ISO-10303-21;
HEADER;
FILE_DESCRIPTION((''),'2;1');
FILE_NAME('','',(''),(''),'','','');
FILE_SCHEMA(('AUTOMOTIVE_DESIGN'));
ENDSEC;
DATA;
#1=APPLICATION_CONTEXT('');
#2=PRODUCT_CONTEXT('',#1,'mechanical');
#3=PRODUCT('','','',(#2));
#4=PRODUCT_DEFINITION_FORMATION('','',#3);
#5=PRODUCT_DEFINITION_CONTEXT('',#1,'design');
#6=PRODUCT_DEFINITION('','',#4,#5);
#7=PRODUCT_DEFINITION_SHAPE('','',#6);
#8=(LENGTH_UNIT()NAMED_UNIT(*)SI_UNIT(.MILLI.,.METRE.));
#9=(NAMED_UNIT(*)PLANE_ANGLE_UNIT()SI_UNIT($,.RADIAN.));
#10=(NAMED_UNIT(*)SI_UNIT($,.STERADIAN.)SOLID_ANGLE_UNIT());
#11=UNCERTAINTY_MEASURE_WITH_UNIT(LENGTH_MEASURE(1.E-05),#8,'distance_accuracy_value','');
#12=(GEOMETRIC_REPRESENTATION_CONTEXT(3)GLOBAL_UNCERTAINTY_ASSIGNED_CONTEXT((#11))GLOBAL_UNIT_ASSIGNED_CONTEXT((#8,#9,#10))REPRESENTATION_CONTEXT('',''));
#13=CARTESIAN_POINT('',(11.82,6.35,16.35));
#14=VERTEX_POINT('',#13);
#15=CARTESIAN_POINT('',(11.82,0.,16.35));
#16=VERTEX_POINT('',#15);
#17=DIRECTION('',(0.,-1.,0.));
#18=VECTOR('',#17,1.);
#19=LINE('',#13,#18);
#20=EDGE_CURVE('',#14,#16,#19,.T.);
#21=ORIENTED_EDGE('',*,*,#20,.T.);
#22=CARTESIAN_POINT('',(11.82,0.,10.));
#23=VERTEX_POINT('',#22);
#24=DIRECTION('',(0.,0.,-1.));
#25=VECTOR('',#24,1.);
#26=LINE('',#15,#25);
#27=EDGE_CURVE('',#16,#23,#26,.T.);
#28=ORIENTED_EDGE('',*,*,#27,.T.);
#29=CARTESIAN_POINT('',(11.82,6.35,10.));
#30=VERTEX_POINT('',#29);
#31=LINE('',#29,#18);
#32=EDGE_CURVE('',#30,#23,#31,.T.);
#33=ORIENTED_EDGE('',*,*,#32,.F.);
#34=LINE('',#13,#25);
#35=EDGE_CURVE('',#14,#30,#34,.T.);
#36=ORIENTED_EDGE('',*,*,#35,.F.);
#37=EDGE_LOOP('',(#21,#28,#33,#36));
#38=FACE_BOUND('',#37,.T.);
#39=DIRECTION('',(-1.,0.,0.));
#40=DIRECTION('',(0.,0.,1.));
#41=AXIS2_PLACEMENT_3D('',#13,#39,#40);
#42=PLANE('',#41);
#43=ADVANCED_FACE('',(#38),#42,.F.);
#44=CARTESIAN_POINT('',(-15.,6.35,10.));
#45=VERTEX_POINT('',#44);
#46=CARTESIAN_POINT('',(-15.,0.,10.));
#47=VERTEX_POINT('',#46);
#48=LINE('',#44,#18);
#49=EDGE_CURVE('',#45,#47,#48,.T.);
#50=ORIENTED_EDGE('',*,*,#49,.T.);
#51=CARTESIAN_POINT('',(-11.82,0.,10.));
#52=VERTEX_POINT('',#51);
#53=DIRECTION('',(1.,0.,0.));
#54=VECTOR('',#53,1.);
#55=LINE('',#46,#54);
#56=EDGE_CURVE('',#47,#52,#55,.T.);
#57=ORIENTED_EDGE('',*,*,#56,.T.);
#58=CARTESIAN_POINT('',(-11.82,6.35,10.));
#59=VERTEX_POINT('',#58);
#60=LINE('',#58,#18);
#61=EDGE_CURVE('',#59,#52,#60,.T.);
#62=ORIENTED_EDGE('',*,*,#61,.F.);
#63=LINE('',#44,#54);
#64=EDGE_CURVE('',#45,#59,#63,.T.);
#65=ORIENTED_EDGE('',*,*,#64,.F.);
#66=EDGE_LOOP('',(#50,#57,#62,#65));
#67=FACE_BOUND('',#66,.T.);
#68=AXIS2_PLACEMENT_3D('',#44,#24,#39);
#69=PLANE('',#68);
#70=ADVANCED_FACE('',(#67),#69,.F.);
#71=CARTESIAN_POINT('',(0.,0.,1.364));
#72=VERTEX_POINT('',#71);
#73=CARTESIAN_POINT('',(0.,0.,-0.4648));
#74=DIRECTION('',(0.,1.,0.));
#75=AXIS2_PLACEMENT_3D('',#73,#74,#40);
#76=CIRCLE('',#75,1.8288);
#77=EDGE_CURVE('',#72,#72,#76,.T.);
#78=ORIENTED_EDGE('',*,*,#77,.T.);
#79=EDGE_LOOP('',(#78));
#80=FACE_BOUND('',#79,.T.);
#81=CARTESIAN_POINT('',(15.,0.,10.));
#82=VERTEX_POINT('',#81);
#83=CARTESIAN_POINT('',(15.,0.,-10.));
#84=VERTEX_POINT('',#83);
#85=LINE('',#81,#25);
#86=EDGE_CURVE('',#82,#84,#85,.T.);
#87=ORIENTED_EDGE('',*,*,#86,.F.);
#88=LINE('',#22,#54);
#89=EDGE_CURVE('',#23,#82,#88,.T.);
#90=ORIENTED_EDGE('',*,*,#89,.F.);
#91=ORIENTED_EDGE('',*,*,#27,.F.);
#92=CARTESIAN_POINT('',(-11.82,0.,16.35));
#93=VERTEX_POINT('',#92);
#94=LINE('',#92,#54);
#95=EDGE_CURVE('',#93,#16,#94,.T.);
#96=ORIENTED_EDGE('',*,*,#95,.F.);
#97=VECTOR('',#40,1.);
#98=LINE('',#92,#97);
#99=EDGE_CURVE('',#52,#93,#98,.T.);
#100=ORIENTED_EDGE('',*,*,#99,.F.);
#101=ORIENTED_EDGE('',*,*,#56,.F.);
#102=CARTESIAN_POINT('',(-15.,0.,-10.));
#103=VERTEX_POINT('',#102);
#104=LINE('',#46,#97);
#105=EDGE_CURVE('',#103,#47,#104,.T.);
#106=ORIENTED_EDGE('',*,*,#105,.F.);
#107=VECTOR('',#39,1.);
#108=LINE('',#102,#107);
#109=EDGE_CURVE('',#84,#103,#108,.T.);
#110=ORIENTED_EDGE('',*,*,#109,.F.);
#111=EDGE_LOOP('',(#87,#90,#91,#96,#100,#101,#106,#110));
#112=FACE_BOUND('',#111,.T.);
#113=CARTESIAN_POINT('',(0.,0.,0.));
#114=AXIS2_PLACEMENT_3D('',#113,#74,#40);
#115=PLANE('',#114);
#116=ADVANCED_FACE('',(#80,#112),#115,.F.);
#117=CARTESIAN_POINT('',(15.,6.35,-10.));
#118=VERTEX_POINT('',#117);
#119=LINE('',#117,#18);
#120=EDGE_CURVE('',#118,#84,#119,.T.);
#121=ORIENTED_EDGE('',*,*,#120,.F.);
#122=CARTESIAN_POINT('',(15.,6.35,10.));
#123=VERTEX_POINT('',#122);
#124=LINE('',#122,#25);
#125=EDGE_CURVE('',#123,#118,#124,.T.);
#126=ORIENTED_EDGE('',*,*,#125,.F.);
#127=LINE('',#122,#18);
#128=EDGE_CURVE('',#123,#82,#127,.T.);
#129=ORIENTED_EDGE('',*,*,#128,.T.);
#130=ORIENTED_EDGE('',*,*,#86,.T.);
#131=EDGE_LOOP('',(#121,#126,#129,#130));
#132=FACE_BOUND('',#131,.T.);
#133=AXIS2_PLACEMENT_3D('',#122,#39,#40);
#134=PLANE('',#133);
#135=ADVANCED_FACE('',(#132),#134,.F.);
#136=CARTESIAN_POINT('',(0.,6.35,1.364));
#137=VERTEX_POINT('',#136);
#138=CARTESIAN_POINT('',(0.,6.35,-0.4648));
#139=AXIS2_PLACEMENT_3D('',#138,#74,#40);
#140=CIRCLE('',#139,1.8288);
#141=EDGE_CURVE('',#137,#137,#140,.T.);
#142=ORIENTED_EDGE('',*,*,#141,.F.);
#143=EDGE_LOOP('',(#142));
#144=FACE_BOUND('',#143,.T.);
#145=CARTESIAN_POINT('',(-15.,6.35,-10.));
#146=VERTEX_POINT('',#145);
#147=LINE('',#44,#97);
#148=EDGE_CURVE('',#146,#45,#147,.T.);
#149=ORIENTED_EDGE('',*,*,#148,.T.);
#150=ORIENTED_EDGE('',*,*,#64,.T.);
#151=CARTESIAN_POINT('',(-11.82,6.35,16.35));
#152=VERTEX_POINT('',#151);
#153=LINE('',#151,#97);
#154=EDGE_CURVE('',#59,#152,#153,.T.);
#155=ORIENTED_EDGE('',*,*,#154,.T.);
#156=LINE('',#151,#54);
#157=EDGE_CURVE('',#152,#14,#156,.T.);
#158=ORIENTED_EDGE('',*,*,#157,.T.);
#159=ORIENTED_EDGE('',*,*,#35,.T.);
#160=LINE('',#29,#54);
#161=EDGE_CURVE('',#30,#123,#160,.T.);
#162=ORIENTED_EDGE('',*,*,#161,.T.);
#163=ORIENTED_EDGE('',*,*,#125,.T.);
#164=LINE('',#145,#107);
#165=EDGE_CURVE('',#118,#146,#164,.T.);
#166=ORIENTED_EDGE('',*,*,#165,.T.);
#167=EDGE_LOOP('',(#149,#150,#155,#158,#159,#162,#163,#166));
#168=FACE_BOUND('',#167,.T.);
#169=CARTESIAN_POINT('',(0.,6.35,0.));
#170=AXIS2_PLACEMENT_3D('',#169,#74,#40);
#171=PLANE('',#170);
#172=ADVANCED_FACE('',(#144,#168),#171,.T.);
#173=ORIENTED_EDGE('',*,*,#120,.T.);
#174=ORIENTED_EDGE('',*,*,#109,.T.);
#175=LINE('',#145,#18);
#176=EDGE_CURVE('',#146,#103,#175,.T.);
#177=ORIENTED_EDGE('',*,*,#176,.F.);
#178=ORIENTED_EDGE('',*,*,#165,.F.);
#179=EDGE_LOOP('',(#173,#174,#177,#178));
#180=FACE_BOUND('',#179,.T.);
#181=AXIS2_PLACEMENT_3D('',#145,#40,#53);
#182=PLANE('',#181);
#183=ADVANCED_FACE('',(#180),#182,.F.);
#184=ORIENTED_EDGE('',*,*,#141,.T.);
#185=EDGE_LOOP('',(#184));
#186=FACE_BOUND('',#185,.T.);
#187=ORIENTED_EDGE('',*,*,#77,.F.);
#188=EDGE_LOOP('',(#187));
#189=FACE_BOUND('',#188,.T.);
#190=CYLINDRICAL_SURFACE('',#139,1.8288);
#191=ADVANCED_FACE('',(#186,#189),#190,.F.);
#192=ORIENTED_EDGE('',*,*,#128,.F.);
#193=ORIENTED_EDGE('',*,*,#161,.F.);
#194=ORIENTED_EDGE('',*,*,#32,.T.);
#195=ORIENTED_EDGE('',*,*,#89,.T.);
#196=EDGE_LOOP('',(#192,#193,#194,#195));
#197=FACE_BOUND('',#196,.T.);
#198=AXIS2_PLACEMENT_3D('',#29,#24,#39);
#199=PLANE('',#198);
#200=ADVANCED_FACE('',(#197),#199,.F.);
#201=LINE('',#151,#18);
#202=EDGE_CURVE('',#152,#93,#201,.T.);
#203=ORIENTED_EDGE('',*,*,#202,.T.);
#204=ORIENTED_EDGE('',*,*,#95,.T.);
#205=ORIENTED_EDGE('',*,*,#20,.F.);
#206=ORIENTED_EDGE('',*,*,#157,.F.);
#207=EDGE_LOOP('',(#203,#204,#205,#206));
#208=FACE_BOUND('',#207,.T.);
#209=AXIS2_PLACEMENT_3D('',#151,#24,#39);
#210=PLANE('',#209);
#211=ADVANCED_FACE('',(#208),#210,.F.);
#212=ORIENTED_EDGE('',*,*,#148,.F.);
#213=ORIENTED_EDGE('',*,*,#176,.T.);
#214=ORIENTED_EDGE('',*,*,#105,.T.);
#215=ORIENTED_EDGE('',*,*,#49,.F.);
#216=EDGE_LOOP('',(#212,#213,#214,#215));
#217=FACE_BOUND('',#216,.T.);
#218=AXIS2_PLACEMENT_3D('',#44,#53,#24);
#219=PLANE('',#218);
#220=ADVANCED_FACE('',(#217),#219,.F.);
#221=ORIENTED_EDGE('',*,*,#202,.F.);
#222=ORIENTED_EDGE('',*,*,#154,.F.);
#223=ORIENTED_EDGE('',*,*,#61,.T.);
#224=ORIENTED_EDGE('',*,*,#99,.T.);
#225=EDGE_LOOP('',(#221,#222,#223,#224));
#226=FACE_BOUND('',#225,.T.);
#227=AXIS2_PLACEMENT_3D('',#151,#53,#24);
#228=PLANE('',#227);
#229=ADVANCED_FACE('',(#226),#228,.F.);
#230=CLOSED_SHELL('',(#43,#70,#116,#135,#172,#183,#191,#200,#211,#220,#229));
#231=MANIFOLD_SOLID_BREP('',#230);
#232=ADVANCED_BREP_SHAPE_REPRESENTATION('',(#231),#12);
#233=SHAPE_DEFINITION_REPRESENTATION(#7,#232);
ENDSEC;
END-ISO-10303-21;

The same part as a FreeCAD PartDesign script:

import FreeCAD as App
import Part
import Sketcher
Q = App.Units.Quantity

doc = App.newDocument("Part")
params = doc.addObject("Spreadsheet::Sheet", "Params")
for row, (alias, value) in enumerate([
    ("sketch1_width", "30 mm"),
    ("sketch1_height", "20 mm"),
    ("sketch1_width2", "3.18 mm"),
    ("sketch1_height2", "6.35 mm"),
    ("pad1_length", "6.35 mm"),
    ("hole_diameter", "3.6576 mm"),
], start=1):
    params.set(f"A{row}", alias)
    params.set(f"B{row}", "=" + value)
    params.setAlias(f"B{row}", alias)

body = doc.addObject("PartDesign::Body", "Body")

# Sketch on XZ plane
sketch1 = doc.addObject("Sketcher::SketchObject", "Sketch")
body.addObject(sketch1)
sketch1.AttachmentSupport = (doc.XZ_Plane, [""])
sketch1.MapMode = "FlatFace"
sketch1.addGeometry(Part.LineSegment(App.Vector(-15, -10, 0), App.Vector(-15, 10, 0)), False)
sketch1.addGeometry(Part.LineSegment(App.Vector(-15, 10, 0), App.Vector(-11.8, 10, 0)), False)
sketch1.addGeometry(Part.LineSegment(App.Vector(-11.8, 10, 0), App.Vector(-11.8, 16.4, 0)), False)
sketch1.addGeometry(Part.LineSegment(App.Vector(-11.8, 16.4, 0), App.Vector(11.8, 16.4, 0)), False)
sketch1.addGeometry(Part.LineSegment(App.Vector(11.8, 16.4, 0), App.Vector(11.8, 10, 0)), False)
sketch1.addGeometry(Part.LineSegment(App.Vector(11.8, 10, 0), App.Vector(15, 10, 0)), False)
sketch1.addGeometry(Part.LineSegment(App.Vector(15, 10, 0), App.Vector(15, -10, 0)), False)
sketch1.addGeometry(Part.LineSegment(App.Vector(15, -10, 0), App.Vector(-15, -10, 0)), False)
sketch1.addConstraint(Sketcher.Constraint("Coincident", 0, 2, 1, 1))
sketch1.addConstraint(Sketcher.Constraint("Coincident", 1, 2, 2, 1))
sketch1.addConstraint(Sketcher.Constraint("Coincident", 2, 2, 3, 1))
sketch1.addConstraint(Sketcher.Constraint("Coincident", 3, 2, 4, 1))
sketch1.addConstraint(Sketcher.Constraint("Coincident", 4, 2, 5, 1))
sketch1.addConstraint(Sketcher.Constraint("Coincident", 5, 2, 6, 1))
sketch1.addConstraint(Sketcher.Constraint("Coincident", 6, 2, 7, 1))
sketch1.addConstraint(Sketcher.Constraint("Coincident", 7, 2, 0, 1))
sketch1.addConstraint(Sketcher.Constraint("Vertical", 0))
sketch1.addConstraint(Sketcher.Constraint("Horizontal", 1))
sketch1.addConstraint(Sketcher.Constraint("Vertical", 2))
sketch1.addConstraint(Sketcher.Constraint("Horizontal", 3))
sketch1.addConstraint(Sketcher.Constraint("Vertical", 4))
sketch1.addConstraint(Sketcher.Constraint("Horizontal", 5))
sketch1.addConstraint(Sketcher.Constraint("Vertical", 6))
sketch1.addConstraint(Sketcher.Constraint("Horizontal", 7))
sketch1.addConstraint(Sketcher.Constraint("Symmetric", 0, 2, 6, 2, -1, 1))
sketch1.addConstraint(Sketcher.Constraint("Symmetric", 1, 2, 4, 2, -2))
sketch1.addConstraint(Sketcher.Constraint("DistanceX", 7, 2, 7, 1, Q("30 mm")))
sketch1.addConstraint(Sketcher.Constraint("DistanceY", 0, 1, 0, 2, Q("20 mm")))
sketch1.addConstraint(Sketcher.Constraint("DistanceX", 1, 1, 1, 2, Q("3.18 mm")))
sketch1.addConstraint(Sketcher.Constraint("DistanceY", 2, 1, 2, 2, Q("6.35 mm")))
sketch1.setExpression("Constraints[18]", "Params.sketch1_width")
sketch1.setExpression("Constraints[19]", "Params.sketch1_height")
sketch1.setExpression("Constraints[20]", "Params.sketch1_width2")
sketch1.setExpression("Constraints[21]", "Params.sketch1_height2")
pad1 = doc.addObject("PartDesign::Pad", "Pad")
body.addObject(pad1)
pad1.Profile = sketch1
pad1.setExpression("Length", "Params.pad1_length")
pad1.Reversed = True

# Sketch on XZ plane
sketch2 = doc.addObject("Sketcher::SketchObject", "Sketch001")
body.addObject(sketch2)
sketch2.AttachmentSupport = (doc.XZ_Plane, [""])
sketch2.MapMode = "FlatFace"
sketch2.AttachmentOffset = App.Placement(App.Vector(0, 0, -6.35), App.Rotation())
sketch2.addGeometry(Part.Circle(App.Vector(0, -0.5, 0), App.Vector(0, 0, 1), 1.8), False)
sketch2.addConstraint(Sketcher.Constraint("PointOnObject", 0, 3, -2))
sketch2.addConstraint(Sketcher.Constraint("Diameter", 0, Q("3.6576 mm")))
sketch2.addConstraint(Sketcher.Constraint("DistanceY", 0, 3, -1, 1, Q("0.4648 mm")))
doc.recompute()
hole = doc.addObject("PartDesign::Hole", "Hole")
body.addObject(hole)
hole.Profile = sketch2
hole.ThreadType = "None"
hole.setExpression("Diameter", "Params.hole_diameter")
hole.DepthType = "ThroughAll"
hole.Reversed = True

doc.recompute()
